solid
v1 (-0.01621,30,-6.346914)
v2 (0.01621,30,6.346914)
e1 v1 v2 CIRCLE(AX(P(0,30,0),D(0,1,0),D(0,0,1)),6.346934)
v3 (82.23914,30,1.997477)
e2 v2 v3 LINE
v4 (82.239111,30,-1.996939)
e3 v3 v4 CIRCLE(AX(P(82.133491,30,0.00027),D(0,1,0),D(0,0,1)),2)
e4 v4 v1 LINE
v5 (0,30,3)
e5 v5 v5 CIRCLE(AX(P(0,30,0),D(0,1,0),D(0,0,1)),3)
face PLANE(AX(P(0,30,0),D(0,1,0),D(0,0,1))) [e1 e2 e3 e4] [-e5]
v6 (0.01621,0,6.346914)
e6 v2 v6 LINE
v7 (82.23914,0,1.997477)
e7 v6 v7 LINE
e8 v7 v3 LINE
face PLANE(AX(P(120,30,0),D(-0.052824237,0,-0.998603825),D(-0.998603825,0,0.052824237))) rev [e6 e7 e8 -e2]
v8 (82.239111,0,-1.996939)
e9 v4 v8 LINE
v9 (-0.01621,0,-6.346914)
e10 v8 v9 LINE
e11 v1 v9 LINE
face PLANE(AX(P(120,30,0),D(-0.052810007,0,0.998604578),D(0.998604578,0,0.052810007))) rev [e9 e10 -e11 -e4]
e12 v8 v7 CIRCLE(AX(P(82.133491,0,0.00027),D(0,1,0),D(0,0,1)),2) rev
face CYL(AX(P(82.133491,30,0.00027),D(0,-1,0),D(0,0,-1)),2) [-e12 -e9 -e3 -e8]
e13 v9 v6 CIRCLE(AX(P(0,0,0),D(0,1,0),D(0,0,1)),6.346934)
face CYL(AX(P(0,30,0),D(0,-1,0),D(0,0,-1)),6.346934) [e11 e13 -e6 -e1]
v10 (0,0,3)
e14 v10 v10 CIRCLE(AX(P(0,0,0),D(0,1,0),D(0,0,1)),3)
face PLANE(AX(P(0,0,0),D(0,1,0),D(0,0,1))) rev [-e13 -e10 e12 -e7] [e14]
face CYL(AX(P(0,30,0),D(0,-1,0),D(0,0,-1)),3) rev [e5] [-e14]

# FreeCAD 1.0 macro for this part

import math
import FreeCAD as App
import Part
import Sketcher

V = App.Vector


def edges_at(feature, points):
    """Names of the edges that pass closest to the given points."""
    edges = feature.Shape.Edges
    near = lambda p: min(range(len(edges)), key=lambda i: edges[i].distToShape(Part.Vertex(*p))[0])
    return sorted({f"Edge{near(p) + 1}" for p in points})

doc = App.newDocument("Part")
body = doc.addObject("PartDesign::Body", "Body")

sketch1 = body.newObject("Sketcher::SketchObject", "Sketch")
sketch1.AttachmentSupport = (doc.getObject("XZ_Plane"), [""])
sketch1.MapMode = "FlatFace"
sketch1.addGeometry([
    Part.LineSegment(V(120, 0, 0), V(-0.01621, -6.346914, 0)),
    Part.ArcOfCircle(Part.Circle(V(0, 0, 0), V(0, 0, 1), 6.346934), math.radians(89.853669), math.radians(269.853669)),
    Part.LineSegment(V(0.01621, 6.346914, 0), V(120, 0, 0)),
    Part.Circle(V(0, 0, 0), V(0, 0, 1), 3),
], False)
sketch1.addConstraint([
    Sketcher.Constraint("Coincident", 0, 2, 1, 2),
    Sketcher.Constraint("Coincident", 1, 1, 2, 1),
    Sketcher.Constraint("Coincident", 2, 2, 0, 1),
    Sketcher.Constraint("Coincident", 1, 3, -1, 1),
    Sketcher.Constraint("Coincident", 3, 3, -1, 1),
    Sketcher.Constraint("PointOnObject", 2, 2, -1),
    Sketcher.Constraint("Diameter", 3, 6.0),
    Sketcher.Constraint("DistanceX", -1, 1, 2, 2, 120.0),
    Sketcher.Constraint("Radius", 1, 6.346934),
    Sketcher.Constraint("DistanceX", 0, 2, -1, 1, 0.01621),
    Sketcher.Constraint("DistanceX", -1, 1, 1, 1, 0.01621),
])
pad1 = body.newObject("PartDesign::Pad", "Pad")
pad1.Profile = sketch1
pad1.Length = 30
pad1.Reversed = True
doc.recompute()

fillet = body.newObject("PartDesign::Fillet", "Fillet")
fillet.Base = (pad1, edges_at(pad1, [(120, 15, 0)]))
fillet.Radius = 2

doc.recompute()
